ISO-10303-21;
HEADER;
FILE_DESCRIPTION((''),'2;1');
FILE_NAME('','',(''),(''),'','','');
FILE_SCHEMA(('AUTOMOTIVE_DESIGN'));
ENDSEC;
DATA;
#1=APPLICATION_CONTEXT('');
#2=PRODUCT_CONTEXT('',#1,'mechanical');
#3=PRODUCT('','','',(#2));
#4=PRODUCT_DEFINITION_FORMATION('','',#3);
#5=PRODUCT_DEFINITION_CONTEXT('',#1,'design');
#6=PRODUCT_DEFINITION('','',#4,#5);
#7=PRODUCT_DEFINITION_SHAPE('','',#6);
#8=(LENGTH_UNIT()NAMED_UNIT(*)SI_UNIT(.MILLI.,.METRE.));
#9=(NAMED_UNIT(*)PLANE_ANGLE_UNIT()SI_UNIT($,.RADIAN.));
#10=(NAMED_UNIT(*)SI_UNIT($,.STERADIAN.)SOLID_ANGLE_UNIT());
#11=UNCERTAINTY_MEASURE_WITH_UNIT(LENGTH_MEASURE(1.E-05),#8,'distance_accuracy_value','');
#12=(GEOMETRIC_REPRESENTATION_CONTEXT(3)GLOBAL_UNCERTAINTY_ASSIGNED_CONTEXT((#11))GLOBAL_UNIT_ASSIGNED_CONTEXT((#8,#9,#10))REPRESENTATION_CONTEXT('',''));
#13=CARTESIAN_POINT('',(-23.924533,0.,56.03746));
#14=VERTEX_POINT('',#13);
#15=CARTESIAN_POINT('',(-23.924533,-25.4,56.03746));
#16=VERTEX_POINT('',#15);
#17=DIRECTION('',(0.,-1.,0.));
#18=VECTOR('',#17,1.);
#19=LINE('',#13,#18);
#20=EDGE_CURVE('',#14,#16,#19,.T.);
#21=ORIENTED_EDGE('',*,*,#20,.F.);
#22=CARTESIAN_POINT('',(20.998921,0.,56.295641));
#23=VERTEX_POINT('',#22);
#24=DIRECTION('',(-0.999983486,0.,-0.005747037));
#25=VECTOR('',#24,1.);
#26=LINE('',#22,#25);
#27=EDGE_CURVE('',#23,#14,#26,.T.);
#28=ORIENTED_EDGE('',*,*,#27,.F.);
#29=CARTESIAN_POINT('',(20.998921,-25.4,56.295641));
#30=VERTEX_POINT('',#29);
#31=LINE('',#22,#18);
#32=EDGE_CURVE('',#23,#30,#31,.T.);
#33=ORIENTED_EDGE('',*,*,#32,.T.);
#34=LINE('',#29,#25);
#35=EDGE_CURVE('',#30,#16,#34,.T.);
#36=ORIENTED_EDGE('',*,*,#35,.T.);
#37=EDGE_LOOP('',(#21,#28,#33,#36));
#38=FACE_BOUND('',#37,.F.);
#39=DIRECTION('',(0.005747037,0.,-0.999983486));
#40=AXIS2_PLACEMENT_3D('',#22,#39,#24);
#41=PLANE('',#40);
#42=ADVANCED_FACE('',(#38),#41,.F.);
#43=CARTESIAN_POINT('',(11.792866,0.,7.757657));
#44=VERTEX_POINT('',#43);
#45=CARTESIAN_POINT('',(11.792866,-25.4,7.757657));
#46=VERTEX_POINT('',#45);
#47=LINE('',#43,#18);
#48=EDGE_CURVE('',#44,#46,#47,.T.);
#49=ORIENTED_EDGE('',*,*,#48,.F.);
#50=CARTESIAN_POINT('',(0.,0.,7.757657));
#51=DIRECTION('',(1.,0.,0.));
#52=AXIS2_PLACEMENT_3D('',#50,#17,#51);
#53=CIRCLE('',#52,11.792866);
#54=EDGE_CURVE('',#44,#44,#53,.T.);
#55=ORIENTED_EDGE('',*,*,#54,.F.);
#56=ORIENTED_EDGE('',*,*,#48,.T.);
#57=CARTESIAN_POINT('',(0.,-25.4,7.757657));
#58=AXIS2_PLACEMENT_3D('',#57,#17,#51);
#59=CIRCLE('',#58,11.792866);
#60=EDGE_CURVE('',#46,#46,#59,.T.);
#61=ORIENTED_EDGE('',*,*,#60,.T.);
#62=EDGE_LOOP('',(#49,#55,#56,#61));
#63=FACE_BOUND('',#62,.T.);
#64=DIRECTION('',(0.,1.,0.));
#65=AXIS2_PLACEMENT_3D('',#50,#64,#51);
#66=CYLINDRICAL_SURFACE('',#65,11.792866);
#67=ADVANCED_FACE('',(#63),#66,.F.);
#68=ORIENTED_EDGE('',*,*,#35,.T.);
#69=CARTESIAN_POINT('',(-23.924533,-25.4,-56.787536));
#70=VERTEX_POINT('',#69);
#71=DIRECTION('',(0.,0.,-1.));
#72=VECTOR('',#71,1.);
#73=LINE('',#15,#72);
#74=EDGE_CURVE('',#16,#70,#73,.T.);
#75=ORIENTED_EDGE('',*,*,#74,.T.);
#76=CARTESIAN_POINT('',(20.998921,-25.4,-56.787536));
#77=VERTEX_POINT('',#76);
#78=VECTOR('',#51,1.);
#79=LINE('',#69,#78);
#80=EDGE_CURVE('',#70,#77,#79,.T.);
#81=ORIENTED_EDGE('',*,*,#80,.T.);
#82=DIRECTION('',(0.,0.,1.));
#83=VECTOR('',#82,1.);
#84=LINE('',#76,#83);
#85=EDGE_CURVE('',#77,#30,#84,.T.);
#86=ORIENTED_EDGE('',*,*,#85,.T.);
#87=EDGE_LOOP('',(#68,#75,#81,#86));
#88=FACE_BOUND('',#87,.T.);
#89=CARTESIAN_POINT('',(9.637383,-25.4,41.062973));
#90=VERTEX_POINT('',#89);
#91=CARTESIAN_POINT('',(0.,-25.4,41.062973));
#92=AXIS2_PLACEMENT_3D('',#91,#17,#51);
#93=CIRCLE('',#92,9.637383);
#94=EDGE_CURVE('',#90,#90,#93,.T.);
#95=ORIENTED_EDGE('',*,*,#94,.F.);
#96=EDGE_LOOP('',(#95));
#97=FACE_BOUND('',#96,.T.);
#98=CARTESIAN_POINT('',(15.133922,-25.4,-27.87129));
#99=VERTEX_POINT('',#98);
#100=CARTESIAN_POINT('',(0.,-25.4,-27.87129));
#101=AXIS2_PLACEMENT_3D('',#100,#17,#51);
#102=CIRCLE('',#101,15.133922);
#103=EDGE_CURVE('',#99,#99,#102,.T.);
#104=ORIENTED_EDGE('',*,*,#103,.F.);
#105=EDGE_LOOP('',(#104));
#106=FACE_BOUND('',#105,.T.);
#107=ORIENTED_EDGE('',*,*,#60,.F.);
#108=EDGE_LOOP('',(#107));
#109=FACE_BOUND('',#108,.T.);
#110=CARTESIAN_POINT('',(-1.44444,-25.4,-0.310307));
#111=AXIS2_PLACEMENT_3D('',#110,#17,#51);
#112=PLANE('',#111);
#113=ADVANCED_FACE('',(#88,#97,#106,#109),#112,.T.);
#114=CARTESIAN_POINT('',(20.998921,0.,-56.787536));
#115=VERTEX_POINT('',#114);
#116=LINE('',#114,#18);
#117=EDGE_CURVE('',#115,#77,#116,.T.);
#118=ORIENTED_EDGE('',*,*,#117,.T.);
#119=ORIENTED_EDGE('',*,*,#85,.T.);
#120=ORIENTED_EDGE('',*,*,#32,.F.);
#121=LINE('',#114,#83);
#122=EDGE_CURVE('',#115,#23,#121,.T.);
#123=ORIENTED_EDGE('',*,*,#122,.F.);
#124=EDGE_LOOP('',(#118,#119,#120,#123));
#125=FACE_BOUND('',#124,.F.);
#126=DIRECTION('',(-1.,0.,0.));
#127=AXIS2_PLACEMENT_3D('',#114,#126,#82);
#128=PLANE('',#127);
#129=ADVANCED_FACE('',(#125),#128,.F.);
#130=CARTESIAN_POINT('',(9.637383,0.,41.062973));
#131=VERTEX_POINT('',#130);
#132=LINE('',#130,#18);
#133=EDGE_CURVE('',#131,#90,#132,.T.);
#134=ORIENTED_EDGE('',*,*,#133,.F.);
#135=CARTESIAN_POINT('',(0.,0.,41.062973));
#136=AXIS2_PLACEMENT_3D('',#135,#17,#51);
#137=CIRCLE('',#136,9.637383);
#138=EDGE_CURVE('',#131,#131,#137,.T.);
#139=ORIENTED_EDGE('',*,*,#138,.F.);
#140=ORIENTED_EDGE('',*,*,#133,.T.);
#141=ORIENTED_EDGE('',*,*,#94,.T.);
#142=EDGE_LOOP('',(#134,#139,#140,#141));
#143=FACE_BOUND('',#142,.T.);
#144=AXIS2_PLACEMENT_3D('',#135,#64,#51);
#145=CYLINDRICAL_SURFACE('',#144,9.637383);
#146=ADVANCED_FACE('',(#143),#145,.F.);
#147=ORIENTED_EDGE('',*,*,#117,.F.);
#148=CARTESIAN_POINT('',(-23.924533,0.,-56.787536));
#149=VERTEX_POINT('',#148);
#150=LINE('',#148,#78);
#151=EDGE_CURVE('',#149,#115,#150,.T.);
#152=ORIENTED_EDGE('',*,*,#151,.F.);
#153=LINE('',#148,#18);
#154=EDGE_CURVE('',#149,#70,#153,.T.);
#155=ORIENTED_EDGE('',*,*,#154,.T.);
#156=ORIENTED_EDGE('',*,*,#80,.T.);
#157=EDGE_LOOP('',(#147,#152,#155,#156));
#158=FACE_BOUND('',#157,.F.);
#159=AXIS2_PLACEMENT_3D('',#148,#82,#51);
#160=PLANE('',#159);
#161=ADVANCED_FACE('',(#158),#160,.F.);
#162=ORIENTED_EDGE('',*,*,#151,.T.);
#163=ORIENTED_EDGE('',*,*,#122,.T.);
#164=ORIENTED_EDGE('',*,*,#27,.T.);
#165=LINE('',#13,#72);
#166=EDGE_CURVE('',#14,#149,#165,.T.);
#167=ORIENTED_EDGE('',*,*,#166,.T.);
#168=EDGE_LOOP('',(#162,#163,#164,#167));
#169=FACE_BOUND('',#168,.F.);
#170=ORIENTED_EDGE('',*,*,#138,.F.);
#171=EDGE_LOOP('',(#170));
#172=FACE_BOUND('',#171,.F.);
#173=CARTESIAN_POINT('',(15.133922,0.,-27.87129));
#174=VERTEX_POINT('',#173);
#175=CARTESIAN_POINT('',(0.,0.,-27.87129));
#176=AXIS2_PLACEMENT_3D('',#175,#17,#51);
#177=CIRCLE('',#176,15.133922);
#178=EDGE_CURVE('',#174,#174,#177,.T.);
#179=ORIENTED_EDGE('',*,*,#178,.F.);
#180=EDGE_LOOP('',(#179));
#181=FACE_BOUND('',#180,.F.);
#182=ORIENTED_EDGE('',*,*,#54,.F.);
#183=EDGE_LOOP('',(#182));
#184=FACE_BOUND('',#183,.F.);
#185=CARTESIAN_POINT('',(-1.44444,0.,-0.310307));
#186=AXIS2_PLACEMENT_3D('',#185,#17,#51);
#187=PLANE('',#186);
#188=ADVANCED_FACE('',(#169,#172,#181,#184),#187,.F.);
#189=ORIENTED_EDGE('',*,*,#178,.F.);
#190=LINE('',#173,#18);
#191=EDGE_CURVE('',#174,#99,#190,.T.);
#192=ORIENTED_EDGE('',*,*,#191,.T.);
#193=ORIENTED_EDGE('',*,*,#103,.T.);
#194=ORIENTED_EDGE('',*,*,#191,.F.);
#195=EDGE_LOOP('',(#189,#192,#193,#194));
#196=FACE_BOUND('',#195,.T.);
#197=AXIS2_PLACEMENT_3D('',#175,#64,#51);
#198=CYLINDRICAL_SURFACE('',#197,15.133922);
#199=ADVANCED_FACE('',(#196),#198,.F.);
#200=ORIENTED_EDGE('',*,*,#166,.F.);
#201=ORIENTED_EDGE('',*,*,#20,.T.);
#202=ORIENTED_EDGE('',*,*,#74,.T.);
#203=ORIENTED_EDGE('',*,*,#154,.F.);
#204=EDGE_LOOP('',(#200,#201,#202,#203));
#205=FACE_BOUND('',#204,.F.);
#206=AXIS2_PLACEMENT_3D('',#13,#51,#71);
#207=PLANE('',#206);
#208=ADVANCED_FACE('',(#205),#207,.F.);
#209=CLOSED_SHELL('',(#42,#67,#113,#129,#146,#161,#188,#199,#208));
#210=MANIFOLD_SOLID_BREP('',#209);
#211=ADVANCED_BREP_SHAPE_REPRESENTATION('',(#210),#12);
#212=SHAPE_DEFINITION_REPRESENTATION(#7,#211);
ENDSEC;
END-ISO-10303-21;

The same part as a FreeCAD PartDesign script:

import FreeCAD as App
import Part
import Sketcher
Q = App.Units.Quantity

doc = App.newDocument("Part")
body = doc.addObject("PartDesign::Body", "Body")

# Sketch on XZ plane
sketch1 = body.newObject("Sketcher::SketchObject", "Sketch")
sketch1.AttachmentSupport = (doc.getObject("XZ_Plane"), [""])
sketch1.MapMode = "FlatFace"
sketch1.addGeometry(Part.LineSegment(App.Vector(21, 56, 0), App.Vector(-24, 56, 0)), False)
sketch1.addGeometry(Part.LineSegment(App.Vector(-24, 56, 0), App.Vector(-24, -57, 0)), False)
sketch1.addGeometry(Part.LineSegment(App.Vector(-24, -57, 0), App.Vector(21, -57, 0)), False)
sketch1.addGeometry(Part.LineSegment(App.Vector(21, -57, 0), App.Vector(21, 56, 0)), False)
sketch1.addGeometry(Part.Circle(App.Vector(0, -28, 0), App.Vector(0, 0, 1), 15), False)
sketch1.addGeometry(Part.Circle(App.Vector(0, 8, 0), App.Vector(0, 0, 1), 12), False)
sketch1.addGeometry(Part.Circle(App.Vector(0, 41, 0), App.Vector(0, 0, 1), 10), False)
sketch1.addConstraint(Sketcher.Constraint("Coincident", 0, 2, 1, 1))
sketch1.addConstraint(Sketcher.Constraint("Coincident", 1, 2, 2, 1))
sketch1.addConstraint(Sketcher.Constraint("Coincident", 2, 2, 3, 1))
sketch1.addConstraint(Sketcher.Constraint("Coincident", 3, 2, 0, 1))
sketch1.addConstraint(Sketcher.Constraint("Vertical", 1))
sketch1.addConstraint(Sketcher.Constraint("Horizontal", 2))
sketch1.addConstraint(Sketcher.Constraint("Vertical", 3))
sketch1.addConstraint(Sketcher.Constraint("PointOnObject", 4, 3, -2))
sketch1.addConstraint(Sketcher.Constraint("PointOnObject", 5, 3, -2))
sketch1.addConstraint(Sketcher.Constraint("PointOnObject", 6, 3, -2))
sketch1.addConstraint(Sketcher.Constraint("Diameter", 5, 23.585732))
sketch1.addConstraint(Sketcher.Constraint("Diameter", 4, 30.267844))
sketch1.addConstraint(Sketcher.Constraint("Diameter", 6, 19.274766))
sketch1.addConstraint(Sketcher.Constraint("DistanceX", 2, 1, 2, 2, 44.923454))
sketch1.addConstraint(Sketcher.Constraint("DistanceY", 1, 2, 1, 1, 112.824996))
sketch1.addConstraint(Sketcher.Constraint("DistanceY", 3, 1, 3, 2, 113.083177))
sketch1.addConstraint(Sketcher.Constraint("DistanceY", 4, 3, -1, 1, 27.87129))
sketch1.addConstraint(Sketcher.Constraint("DistanceY", -1, 1, 0, 2, 56.03746))
sketch1.addConstraint(Sketcher.Constraint("DistanceX", -1, 1, 2, 2, 20.998921))
sketch1.addConstraint(Sketcher.Constraint("DistanceY", 1, 2, 6, 3, 97.850509))
sketch1.addConstraint(Sketcher.Constraint("DistanceY", -1, 1, 5, 3, 7.757657))
pad1 = body.newObject("PartDesign::Pad", "Pad")
pad1.Profile = sketch1
pad1.Length = Q("1 in")

doc.recompute()
